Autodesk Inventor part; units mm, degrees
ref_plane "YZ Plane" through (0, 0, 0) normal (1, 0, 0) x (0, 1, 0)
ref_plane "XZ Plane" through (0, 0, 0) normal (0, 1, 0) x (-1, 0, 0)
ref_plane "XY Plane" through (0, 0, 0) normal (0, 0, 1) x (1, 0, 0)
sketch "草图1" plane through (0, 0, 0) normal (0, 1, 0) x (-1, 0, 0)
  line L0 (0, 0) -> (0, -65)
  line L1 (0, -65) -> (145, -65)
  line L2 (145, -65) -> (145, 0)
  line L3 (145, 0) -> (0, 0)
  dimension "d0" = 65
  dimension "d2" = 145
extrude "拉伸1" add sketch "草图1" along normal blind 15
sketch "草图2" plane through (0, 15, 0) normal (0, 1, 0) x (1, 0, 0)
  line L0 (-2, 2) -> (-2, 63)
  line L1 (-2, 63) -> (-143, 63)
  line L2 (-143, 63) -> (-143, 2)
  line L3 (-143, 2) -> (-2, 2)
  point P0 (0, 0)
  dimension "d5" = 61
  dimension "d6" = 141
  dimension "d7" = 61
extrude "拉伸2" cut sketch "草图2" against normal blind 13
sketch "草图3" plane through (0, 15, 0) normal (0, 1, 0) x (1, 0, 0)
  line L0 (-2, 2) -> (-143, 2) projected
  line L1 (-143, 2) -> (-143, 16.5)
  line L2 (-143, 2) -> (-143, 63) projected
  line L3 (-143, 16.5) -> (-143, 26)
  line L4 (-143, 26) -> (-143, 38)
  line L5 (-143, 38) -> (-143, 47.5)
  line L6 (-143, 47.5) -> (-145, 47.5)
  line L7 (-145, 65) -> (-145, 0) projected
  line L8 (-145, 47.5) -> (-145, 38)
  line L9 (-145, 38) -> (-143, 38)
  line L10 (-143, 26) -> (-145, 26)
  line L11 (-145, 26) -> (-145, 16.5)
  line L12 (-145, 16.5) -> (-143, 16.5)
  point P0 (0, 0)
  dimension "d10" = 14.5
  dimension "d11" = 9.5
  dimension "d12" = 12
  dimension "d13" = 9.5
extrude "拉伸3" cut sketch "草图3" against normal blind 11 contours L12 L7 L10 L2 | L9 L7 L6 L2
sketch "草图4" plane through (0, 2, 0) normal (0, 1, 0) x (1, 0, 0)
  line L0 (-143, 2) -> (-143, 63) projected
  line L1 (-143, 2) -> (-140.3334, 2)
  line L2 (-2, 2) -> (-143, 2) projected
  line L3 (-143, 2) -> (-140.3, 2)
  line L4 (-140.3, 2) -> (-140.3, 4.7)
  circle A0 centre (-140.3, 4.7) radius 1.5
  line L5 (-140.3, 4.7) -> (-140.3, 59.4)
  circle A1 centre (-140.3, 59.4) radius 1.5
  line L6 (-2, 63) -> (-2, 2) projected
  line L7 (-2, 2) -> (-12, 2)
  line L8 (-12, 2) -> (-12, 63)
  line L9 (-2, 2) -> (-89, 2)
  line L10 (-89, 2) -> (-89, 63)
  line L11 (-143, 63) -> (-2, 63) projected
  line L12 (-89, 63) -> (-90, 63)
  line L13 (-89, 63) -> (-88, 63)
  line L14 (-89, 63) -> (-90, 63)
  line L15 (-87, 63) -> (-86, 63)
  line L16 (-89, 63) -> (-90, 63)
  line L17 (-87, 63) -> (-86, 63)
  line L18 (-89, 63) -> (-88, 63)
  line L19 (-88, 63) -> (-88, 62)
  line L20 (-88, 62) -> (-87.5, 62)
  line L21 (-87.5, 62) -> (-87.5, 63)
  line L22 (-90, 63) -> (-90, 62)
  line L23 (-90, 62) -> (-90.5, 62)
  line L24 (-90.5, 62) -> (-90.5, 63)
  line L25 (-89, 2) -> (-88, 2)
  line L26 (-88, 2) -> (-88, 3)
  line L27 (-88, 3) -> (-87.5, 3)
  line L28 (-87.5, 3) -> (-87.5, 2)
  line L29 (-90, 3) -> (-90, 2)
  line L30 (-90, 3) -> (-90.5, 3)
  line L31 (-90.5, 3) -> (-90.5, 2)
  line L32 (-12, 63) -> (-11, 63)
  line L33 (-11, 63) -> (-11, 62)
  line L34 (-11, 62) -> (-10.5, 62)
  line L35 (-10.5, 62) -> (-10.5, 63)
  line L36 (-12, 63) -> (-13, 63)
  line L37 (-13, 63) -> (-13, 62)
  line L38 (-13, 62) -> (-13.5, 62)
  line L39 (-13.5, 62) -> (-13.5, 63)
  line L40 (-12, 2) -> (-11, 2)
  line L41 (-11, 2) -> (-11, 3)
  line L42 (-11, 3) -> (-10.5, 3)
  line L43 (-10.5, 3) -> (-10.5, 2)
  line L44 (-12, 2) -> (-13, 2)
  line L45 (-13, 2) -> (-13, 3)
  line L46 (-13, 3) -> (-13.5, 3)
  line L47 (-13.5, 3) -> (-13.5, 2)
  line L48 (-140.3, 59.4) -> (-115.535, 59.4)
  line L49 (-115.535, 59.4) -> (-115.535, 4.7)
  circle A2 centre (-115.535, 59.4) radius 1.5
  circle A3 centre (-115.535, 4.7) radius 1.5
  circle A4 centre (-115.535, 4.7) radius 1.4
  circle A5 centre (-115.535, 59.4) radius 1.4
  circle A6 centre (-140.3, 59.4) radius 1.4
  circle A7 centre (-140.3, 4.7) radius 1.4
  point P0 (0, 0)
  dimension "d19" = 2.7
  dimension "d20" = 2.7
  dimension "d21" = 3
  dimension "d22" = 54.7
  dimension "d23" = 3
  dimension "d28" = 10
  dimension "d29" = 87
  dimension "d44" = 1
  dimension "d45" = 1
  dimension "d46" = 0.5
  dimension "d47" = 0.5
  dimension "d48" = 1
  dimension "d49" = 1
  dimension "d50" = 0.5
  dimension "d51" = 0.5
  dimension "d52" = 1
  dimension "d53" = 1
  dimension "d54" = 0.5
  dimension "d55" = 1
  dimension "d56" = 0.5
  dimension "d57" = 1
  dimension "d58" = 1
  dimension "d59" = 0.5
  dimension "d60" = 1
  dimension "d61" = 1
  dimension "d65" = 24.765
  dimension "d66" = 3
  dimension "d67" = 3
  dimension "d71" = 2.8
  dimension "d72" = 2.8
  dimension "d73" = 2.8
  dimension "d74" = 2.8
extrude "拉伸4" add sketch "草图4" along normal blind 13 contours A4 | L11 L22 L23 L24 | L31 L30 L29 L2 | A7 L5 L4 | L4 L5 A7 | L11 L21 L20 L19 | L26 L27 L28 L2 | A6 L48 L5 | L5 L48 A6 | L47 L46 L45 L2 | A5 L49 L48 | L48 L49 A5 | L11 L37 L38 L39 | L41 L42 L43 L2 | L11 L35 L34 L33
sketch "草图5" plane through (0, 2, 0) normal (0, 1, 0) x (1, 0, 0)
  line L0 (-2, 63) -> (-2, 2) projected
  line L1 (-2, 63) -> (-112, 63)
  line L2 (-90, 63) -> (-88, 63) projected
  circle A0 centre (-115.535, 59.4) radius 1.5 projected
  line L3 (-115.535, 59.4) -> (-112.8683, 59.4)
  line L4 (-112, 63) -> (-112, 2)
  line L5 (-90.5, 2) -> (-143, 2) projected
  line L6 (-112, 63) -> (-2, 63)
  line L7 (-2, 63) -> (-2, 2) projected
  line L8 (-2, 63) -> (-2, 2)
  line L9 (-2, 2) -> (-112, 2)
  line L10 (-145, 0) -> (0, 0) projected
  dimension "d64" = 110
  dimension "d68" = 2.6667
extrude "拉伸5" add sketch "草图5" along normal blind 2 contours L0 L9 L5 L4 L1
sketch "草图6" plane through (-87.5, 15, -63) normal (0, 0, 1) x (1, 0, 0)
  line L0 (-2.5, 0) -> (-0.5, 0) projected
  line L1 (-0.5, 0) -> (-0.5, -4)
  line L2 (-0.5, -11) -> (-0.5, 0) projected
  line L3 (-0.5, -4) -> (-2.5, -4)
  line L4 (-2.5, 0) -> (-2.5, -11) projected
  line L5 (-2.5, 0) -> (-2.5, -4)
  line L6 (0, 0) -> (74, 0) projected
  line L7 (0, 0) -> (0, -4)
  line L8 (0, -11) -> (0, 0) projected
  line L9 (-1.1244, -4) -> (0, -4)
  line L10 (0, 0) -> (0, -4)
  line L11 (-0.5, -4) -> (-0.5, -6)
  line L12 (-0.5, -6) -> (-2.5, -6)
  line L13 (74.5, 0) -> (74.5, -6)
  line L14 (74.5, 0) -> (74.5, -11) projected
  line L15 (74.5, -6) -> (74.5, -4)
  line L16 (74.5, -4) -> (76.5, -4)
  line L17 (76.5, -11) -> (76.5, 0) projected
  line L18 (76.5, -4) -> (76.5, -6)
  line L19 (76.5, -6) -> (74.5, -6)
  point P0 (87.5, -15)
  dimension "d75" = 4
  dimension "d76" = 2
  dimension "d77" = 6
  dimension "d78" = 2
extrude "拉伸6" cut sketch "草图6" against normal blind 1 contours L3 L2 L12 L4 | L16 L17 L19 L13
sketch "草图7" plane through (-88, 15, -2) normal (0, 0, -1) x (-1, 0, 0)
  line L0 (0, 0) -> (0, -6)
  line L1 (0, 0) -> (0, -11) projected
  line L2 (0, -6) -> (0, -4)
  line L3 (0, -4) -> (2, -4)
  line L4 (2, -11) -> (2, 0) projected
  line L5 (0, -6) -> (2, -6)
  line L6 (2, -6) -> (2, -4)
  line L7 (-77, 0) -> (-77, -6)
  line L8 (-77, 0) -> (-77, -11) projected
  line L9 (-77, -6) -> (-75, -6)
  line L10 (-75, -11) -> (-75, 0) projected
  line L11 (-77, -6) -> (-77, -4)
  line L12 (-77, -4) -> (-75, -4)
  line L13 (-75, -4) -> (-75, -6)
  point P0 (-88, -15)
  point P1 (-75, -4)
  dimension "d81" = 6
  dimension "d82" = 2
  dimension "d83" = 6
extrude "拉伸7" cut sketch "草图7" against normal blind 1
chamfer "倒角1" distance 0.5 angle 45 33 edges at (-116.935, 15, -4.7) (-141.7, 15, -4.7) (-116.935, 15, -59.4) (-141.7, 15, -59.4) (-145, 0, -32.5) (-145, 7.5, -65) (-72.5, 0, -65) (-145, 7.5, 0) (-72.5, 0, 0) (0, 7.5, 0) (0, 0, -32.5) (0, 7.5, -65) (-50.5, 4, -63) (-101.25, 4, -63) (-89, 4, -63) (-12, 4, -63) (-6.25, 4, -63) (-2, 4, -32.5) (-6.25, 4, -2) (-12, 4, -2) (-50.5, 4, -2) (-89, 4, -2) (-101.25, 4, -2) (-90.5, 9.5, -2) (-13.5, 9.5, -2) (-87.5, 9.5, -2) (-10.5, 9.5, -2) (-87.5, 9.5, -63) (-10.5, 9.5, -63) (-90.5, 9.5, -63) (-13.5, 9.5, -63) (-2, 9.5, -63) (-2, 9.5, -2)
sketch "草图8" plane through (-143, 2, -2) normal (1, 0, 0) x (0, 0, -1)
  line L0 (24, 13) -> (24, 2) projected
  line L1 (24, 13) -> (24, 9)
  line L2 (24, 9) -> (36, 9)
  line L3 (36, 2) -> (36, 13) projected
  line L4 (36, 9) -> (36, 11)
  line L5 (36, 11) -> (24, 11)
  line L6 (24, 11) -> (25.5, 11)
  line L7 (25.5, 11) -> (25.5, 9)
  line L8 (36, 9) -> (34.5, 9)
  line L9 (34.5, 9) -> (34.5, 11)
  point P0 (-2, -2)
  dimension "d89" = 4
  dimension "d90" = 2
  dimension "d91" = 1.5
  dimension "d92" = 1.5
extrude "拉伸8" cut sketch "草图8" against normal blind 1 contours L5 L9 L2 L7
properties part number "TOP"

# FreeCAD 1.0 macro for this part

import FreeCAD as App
import Part
import Sketcher
Q = App.Units.Quantity


def edges_at(feature, points):
    """Names of the edges that pass closest to the given points."""
    edges = feature.Shape.Edges
    near = lambda p: min(range(len(edges)), key=lambda i: edges[i].distToShape(Part.Vertex(*p))[0])
    return sorted({f"Edge{near(p) + 1}" for p in points})


def add_polygon(sketch, points):
    """Adds a closed chain of lines whose ends are joined by coincident constraints."""
    first, n = sketch.GeometryCount, len(points)
    for a, b in zip(points, points[1:] + points[:1]):
        sketch.addGeometry(Part.LineSegment(App.Vector(*a, 0), App.Vector(*b, 0)), False)
    for i in range(n):
        sketch.addConstraint(Sketcher.Constraint("Coincident", first + i, 2, first + (i + 1) % n, 1))

doc = App.newDocument("Part")
body = doc.addObject("PartDesign::Body", "Body")

# Sketch on XZ plane
sketch1 = doc.addObject("Sketcher::SketchObject", "Sketch")
body.addObject(sketch1)
sketch1.AttachmentSupport = (doc.XZ_Plane, [""])
sketch1.MapMode = "FlatFace"
add_polygon(sketch1, [(-145, 0), (0, 0), (0, -65), (-145, -65)])  # lines 0-3
sketch1.addConstraint([
    Sketcher.Constraint("Horizontal", 0),
    Sketcher.Constraint("Vertical", 1),
    Sketcher.Constraint("Horizontal", 2),
    Sketcher.Constraint("Vertical", 3),
    Sketcher.Constraint("Coincident", 0, 2, -1, 1),
    Sketcher.Constraint("DistanceX", 0, 1, 0, 2, Q("145 mm")),
    Sketcher.Constraint("DistanceY", 1, 2, 1, 1, Q("65 mm")),
])
pad1 = doc.addObject("PartDesign::Pad", "Pad")
body.addObject(pad1)
pad1.Profile = sketch1
pad1.Length = 15
pad1.Reversed = True

# Sketch on XZ plane
sketch2 = doc.addObject("Sketcher::SketchObject", "Sketch001")
body.addObject(sketch2)
sketch2.AttachmentSupport = (doc.XZ_Plane, [""])
sketch2.MapMode = "FlatFace"
sketch2.AttachmentOffset = App.Placement(App.Vector(0, 0, -15), App.Rotation())
add_polygon(sketch2, [(-143, -2), (-2, -2), (-2, -63), (-143, -63)])  # lines 0-3
sketch2.addConstraint([
    Sketcher.Constraint("Horizontal", 0),
    Sketcher.Constraint("Vertical", 1),
    Sketcher.Constraint("Horizontal", 2),
    Sketcher.Constraint("Vertical", 3),
    Sketcher.Constraint("DistanceX", 0, 1, 0, 2, Q("141 mm")),
    Sketcher.Constraint("DistanceY", 1, 2, 1, 1, Q("61 mm")),
    Sketcher.Constraint("DistanceX", 0, 2, -1, 1, Q("2 mm")),
    Sketcher.Constraint("DistanceY", 0, 2, -1, 1, Q("2 mm")),
])
pocket1 = doc.addObject("PartDesign::Pocket", "Pocket")
body.addObject(pocket1)
pocket1.Profile = sketch2
pocket1.Length = 13
pocket1.Reversed = True

# Sketch on XZ plane
sketch3 = doc.addObject("Sketcher::SketchObject", "Sketch002")
body.addObject(sketch3)
sketch3.AttachmentSupport = (doc.XZ_Plane, [""])
sketch3.MapMode = "FlatFace"
sketch3.AttachmentOffset = App.Placement(App.Vector(0, 0, -15), App.Rotation())
add_polygon(sketch3, [(-145, -16.5), (-143, -16.5), (-143, -26), (-145, -26)])  # lines 0-3
add_polygon(sketch3, [(-145, -38), (-143, -38), (-143, -47.5), (-145, -47.5)])  # lines 4-7
sketch3.addConstraint([
    Sketcher.Constraint("Horizontal", 0),
    Sketcher.Constraint("Vertical", 1),
    Sketcher.Constraint("Horizontal", 2),
    Sketcher.Constraint("Vertical", 3),
    Sketcher.Constraint("Horizontal", 4),
    Sketcher.Constraint("Vertical", 5),
    Sketcher.Constraint("Horizontal", 6),
    Sketcher.Constraint("Vertical", 7),
    Sketcher.Constraint("Vertical", 1, 2, 4, 2),
    Sketcher.Constraint("Vertical", 3, 2, 6, 2),
    Sketcher.Constraint("Equal", 3, 5),
    Sketcher.Constraint("DistanceY", 1, 2, 1, 1, Q("9.5 mm")),
    Sketcher.Constraint("DistanceY", 4, 2, 1, 2, Q("12 mm")),
    Sketcher.Constraint("DistanceX", 0, 1, 0, 2, Q("2 mm")),
    Sketcher.Constraint("DistanceX", 0, 2, -1, 1, Q("143 mm")),
    Sketcher.Constraint("DistanceY", 1, 2, -1, 1, Q("26 mm")),
])
pocket2 = doc.addObject("PartDesign::Pocket", "Pocket001")
body.addObject(pocket2)
pocket2.Profile = sketch3
pocket2.Length = 11
pocket2.Reversed = True

# Sketch on XZ plane
sketch4 = doc.addObject("Sketcher::SketchObject", "Sketch003")
body.addObject(sketch4)
sketch4.AttachmentSupport = (doc.XZ_Plane, [""])
sketch4.MapMode = "FlatFace"
sketch4.AttachmentOffset = App.Placement(App.Vector(0, 0, -2), App.Rotation())
sketch4.addGeometry(Part.Circle(App.Vector(-115.5, -4.7, 0), App.Vector(0, 0, 1), 1.4), False)  # 0
add_polygon(sketch4, [(-90, -63), (-90.5, -63), (-90.5, -62), (-90, -62)])  # lines 1-4
add_polygon(sketch4, [(-90.5, -3), (-90.5, -2), (-90, -2), (-90, -3)])  # lines 5-8
sketch4.addGeometry(Part.Circle(App.Vector(-140.3, -4.7, 0), App.Vector(0, 0, 1), 1.4), False)  # 9
add_polygon(sketch4, [(-87.5, -63), (-88, -63), (-88, -62), (-87.5, -62)])  # lines 10-13
add_polygon(sketch4, [(-88, -3), (-88, -2), (-87.5, -2), (-87.5, -3)])  # lines 14-17
sketch4.addGeometry(Part.Circle(App.Vector(-140.3, -59.4, 0), App.Vector(0, 0, 1), 1.4), False)  # 18
add_polygon(sketch4, [(-13.5, -3), (-13.5, -2), (-13, -2), (-13, -3)])  # lines 19-22
sketch4.addGeometry(Part.Circle(App.Vector(-115.5, -59.4, 0), App.Vector(0, 0, 1), 1.4), False)  # 23
add_polygon(sketch4, [(-13, -63), (-13.5, -63), (-13.5, -62), (-13, -62)])  # lines 24-27
add_polygon(sketch4, [(-11, -3), (-11, -2), (-10.5, -2), (-10.5, -3)])  # lines 28-31
add_polygon(sketch4, [(-10.5, -63), (-11, -63), (-11, -62), (-10.5, -62)])  # lines 32-35
sketch4.addConstraint([
    Sketcher.Constraint("Horizontal", 1),
    Sketcher.Constraint("Vertical", 2),
    Sketcher.Constraint("Horizontal", 3),
    Sketcher.Constraint("Vertical", 4),
    Sketcher.Constraint("Vertical", 5),
    Sketcher.Constraint("Horizontal", 6),
    Sketcher.Constraint("Vertical", 7),
    Sketcher.Constraint("Horizontal", 8),
    Sketcher.Constraint("Horizontal", 10),
    Sketcher.Constraint("Vertical", 11),
    Sketcher.Constraint("Horizontal", 12),
    Sketcher.Constraint("Vertical", 13),
    Sketcher.Constraint("Vertical", 14),
    Sketcher.Constraint("Horizontal", 15),
    Sketcher.Constraint("Vertical", 16),
    Sketcher.Constraint("Horizontal", 17),
    Sketcher.Constraint("Vertical", 19),
    Sketcher.Constraint("Horizontal", 20),
    Sketcher.Constraint("Vertical", 21),
    Sketcher.Constraint("Horizontal", 22),
    Sketcher.Constraint("Horizontal", 24),
    Sketcher.Constraint("Vertical", 25),
    Sketcher.Constraint("Horizontal", 26),
    Sketcher.Constraint("Vertical", 27),
    Sketcher.Constraint("Vertical", 28),
    Sketcher.Constraint("Horizontal", 29),
    Sketcher.Constraint("Vertical", 30),
    Sketcher.Constraint("Horizontal", 31),
    Sketcher.Constraint("Horizontal", 32),
    Sketcher.Constraint("Vertical", 33),
    Sketcher.Constraint("Horizontal", 34),
    Sketcher.Constraint("Vertical", 35),
    Sketcher.Constraint("Equal", 0, 9),
    Sketcher.Constraint("Equal", 9, 18),
    Sketcher.Constraint("Equal", 18, 23),
    Sketcher.Constraint("Horizontal", 0, 3, 9, 3),
    Sketcher.Constraint("Horizontal", 18, 3, 23, 3),
    Sketcher.Constraint("Horizontal", 4, 2, 10, 2),
    Sketcher.Constraint("Horizontal", 3, 2, 11, 2),
    Sketcher.Constraint("Horizontal", 6, 2, 14, 2),
    Sketcher.Constraint("Horizontal", 8, 2, 16, 2),
    Sketcher.Constraint("Horizontal", 15, 2, 19, 2),
    Sketcher.Constraint("Horizontal", 17, 2, 21, 2),
    Sketcher.Constraint("Horizontal", 13, 2, 24, 2),
    Sketcher.Constraint("Horizontal", 12, 2, 25, 2),
    Sketcher.Constraint("Horizontal", 20, 2, 28, 2),
    Sketcher.Constraint("Horizontal", 22, 2, 30, 2),
    Sketcher.Constraint("Horizontal", 27, 2, 32, 2),
    Sketcher.Constraint("Horizontal", 26, 2, 33, 2),
    Sketcher.Constraint("Vertical", 9, 3, 18, 3),
    Sketcher.Constraint("Vertical", 0, 3, 23, 3),
    Sketcher.Constraint("Vertical", 2, 2, 5, 2),
    Sketcher.Constraint("Vertical", 4, 2, 6, 2),
    Sketcher.Constraint("Vertical", 11, 2, 14, 2),
    Sketcher.Constraint("Vertical", 13, 2, 15, 2),
    Sketcher.Constraint("Vertical", 22, 2, 24, 2),
    Sketcher.Constraint("Vertical", 21, 2, 26, 2),
    Sketcher.Constraint("Vertical", 31, 2, 32, 2),
    Sketcher.Constraint("Vertical", 30, 2, 34, 2),
    Sketcher.Constraint("Equal", 8, 10),
    Sketcher.Constraint("Equal", 17, 20),
    Sketcher.Constraint("Equal", 26, 29),
    Sketcher.Constraint("Equal", 4, 5),
    Sketcher.Constraint("Diameter", 0, Q("2.8 mm")),
    Sketcher.Constraint("DistanceY", 2, 1, 2, 2, Q("1 mm")),
    Sketcher.Constraint("DistanceX", 1, 2, 1, 1, Q("0.5 mm")),
    Sketcher.Constraint("DistanceY", 7, 2, -1, 1, Q("3 mm")),
    Sketcher.Constraint("DistanceX", 2, 2, 12, 2, Q("3 mm")),
    Sketcher.Constraint("DistanceX", 19, 2, 29, 2, Q("3 mm")),
    Sketcher.Constraint("DistanceY", 18, 3, 9, 3, Q("54.7 mm")),
    Sketcher.Constraint("DistanceY", 0, 3, 5, 2, Q("2.7 mm")),
    Sketcher.Constraint("DistanceY", 1, 2, -1, 1, Q("63 mm")),
    Sketcher.Constraint("DistanceX", 3, 2, -1, 1, Q("90 mm")),
    Sketcher.Constraint("DistanceX", 20, 2, -1, 1, Q("13 mm")),
    Sketcher.Constraint("DistanceX", 9, 3, 0, 3, Q("24.765 mm")),
    Sketcher.Constraint("DistanceX", 9, 3, -1, 1, Q("140.3 mm")),
])
pad2 = doc.addObject("PartDesign::Pad", "Pad001")
body.addObject(pad2)
pad2.Profile = sketch4
pad2.Length = 13
pad2.Reversed = True

# Sketch on XZ plane
sketch5 = doc.addObject("Sketcher::SketchObject", "Sketch004")
body.addObject(sketch5)
sketch5.AttachmentSupport = (doc.XZ_Plane, [""])
sketch5.MapMode = "FlatFace"
sketch5.AttachmentOffset = App.Placement(App.Vector(0, 0, -2), App.Rotation())
add_polygon(sketch5, [(-2, -2), (-2, -63), (-112, -63), (-112, -2)])  # lines 0-3
sketch5.addConstraint([
    Sketcher.Constraint("Vertical", 0),
    Sketcher.Constraint("Horizontal", 1),
    Sketcher.Constraint("Vertical", 2),
    Sketcher.Constraint("Horizontal", 3),
    Sketcher.Constraint("DistanceX", 1, 2, 1, 1, Q("110 mm")),
    Sketcher.Constraint("DistanceY", 0, 2, 0, 1, Q("61 mm")),
    Sketcher.Constraint("DistanceX", 0, 2, -1, 1, Q("2 mm")),
    Sketcher.Constraint("DistanceY", 0, 2, -1, 1, Q("63 mm")),
])
pad3 = doc.addObject("PartDesign::Pad", "Pad002")
body.addObject(pad3)
pad3.Profile = sketch5
pad3.Length = 2
pad3.Reversed = True

# Sketch on XY plane
sketch6 = doc.addObject("Sketcher::SketchObject", "Sketch005")
body.addObject(sketch6)
sketch6.AttachmentSupport = (doc.XY_Plane, [""])
sketch6.MapMode = "FlatFace"
sketch6.AttachmentOffset = App.Placement(App.Vector(0, 0, -63), App.Rotation())
add_polygon(sketch6, [(-88, 11), (-90, 11), (-90, 9), (-88, 9)])  # lines 0-3
add_polygon(sketch6, [(-11, 11), (-13, 11), (-13, 9), (-11, 9)])  # lines 4-7
sketch6.addConstraint([
    Sketcher.Constraint("Horizontal", 0),
    Sketcher.Constraint("Vertical", 1),
    Sketcher.Constraint("Horizontal", 2),
    Sketcher.Constraint("Vertical", 3),
    Sketcher.Constraint("Horizontal", 4),
    Sketcher.Constraint("Vertical", 5),
    Sketcher.Constraint("Horizontal", 6),
    Sketcher.Constraint("Vertical", 7),
    Sketcher.Constraint("Horizontal", 3, 2, 4, 2),
    Sketcher.Constraint("Horizontal", 2, 2, 5, 2),
    Sketcher.Constraint("Equal", 2, 4),
    Sketcher.Constraint("Equal", 6, 1),
    Sketcher.Constraint("DistanceX", 0, 2, 0, 1, Q("2 mm")),
    Sketcher.Constraint("DistanceX", 0, 2, -1, 1, Q("90 mm")),
    Sketcher.Constraint("DistanceY", -1, 1, 0, 2, Q("11 mm")),
    Sketcher.Constraint("DistanceX", 4, 2, -1, 1, Q("13 mm")),
])
pocket3 = doc.addObject("PartDesign::Pocket", "Pocket002")
body.addObject(pocket3)
pocket3.Profile = sketch6
pocket3.Length = 1

# Sketch on XY plane
sketch7 = doc.addObject("Sketcher::SketchObject", "Sketch006")
body.addObject(sketch7)
sketch7.AttachmentSupport = (doc.XY_Plane, [""])
sketch7.MapMode = "FlatFace"
sketch7.AttachmentOffset = App.Placement(App.Vector(0, 0, -2), App.Rotation())
add_polygon(sketch7, [(-90, 11), (-88, 11), (-88, 9), (-90, 9)])  # lines 0-3
add_polygon(sketch7, [(-13, 11), (-11, 11), (-11, 9), (-13, 9)])  # lines 4-7
sketch7.addConstraint([
    Sketcher.Constraint("Horizontal", 0),
    Sketcher.Constraint("Vertical", 1),
    Sketcher.Constraint("Horizontal", 2),
    Sketcher.Constraint("Vertical", 3),
    Sketcher.Constraint("Horizontal", 4),
    Sketcher.Constraint("Vertical", 5),
    Sketcher.Constraint("Horizontal", 6),
    Sketcher.Constraint("Vertical", 7),
    Sketcher.Constraint("Horizontal", 3, 2, 4, 2),
    Sketcher.Constraint("Horizontal", 2, 2, 5, 2),
    Sketcher.Constraint("Equal", 2, 4),
    Sketcher.Constraint("Equal", 6, 1),
    Sketcher.Constraint("DistanceX", 0, 1, 0, 2, Q("2 mm")),
    Sketcher.Constraint("DistanceX", 0, 2, -1, 1, Q("88 mm")),
    Sketcher.Constraint("DistanceY", -1, 1, 0, 2, Q("11 mm")),
    Sketcher.Constraint("DistanceX", 4, 2, -1, 1, Q("11 mm")),
])
pocket4 = doc.addObject("PartDesign::Pocket", "Pocket003")
body.addObject(pocket4)
pocket4.Profile = sketch7
pocket4.Length = 1
pocket4.Reversed = True
doc.recompute()

chamfer = doc.addObject("PartDesign::Chamfer", "Chamfer")
body.addObject(chamfer)
chamfer.Base = (pocket4, edges_at(pocket4, [
    (-116.935, 15, -4.7),
    (-141.7, 15, -4.7),
    (-116.935, 15, -59.4),
    (-141.7, 15, -59.4),
    (-145, 0, -32.5),
    (-145, 7.5, -65),
    (-72.5, 0, -65),
    (-145, 7.5, 0),
    (-72.5, 0, 0),
    (0, 7.5, 0),
    (0, 0, -32.5),
    (0, 7.5, -65),
    (-50.5, 4, -63),
    (-101.25, 4, -63),
    (-89, 4, -63),
    (-12, 4, -63),
    (-6.25, 4, -63),
    (-2, 4, -32.5),
    (-6.25, 4, -2),
    (-12, 4, -2),
    (-50.5, 4, -2),
    (-89, 4, -2),
    (-101.25, 4, -2),
    (-90.5, 9.5, -2),
    (-13.5, 9.5, -2),
    (-87.5, 9.5, -2),
    (-10.5, 9.5, -2),
    (-87.5, 9.5, -63),
    (-10.5, 9.5, -63),
    (-90.5, 9.5, -63),
    (-13.5, 9.5, -63),
    (-2, 9.5, -63),
    (-2, 9.5, -2),
]))
chamfer.Size = 0.5

# Sketch on YZ plane
sketch8 = doc.addObject("Sketcher::SketchObject", "Sketch007")
body.addObject(sketch8)
sketch8.AttachmentSupport = (doc.YZ_Plane, [""])
sketch8.MapMode = "FlatFace"
sketch8.AttachmentOffset = App.Placement(App.Vector(0, 0, -143), App.Rotation())
add_polygon(sketch8, [(13, -36.5), (13, -27.5), (11, -27.5), (11, -36.5)])  # lines 0-3
sketch8.addConstraint([
    Sketcher.Constraint("Vertical", 0),
    Sketcher.Constraint("Horizontal", 1),
    Sketcher.Constraint("Vertical", 2),
    Sketcher.Constraint("Horizontal", 3),
    Sketcher.Constraint("DistanceX", 1, 2, 1, 1, Q("2 mm")),
    Sketcher.Constraint("DistanceY", 0, 1, 0, 2, Q("9 mm")),
    Sketcher.Constraint("DistanceX", -1, 1, 0, 2, Q("13 mm")),
    Sketcher.Constraint("DistanceY", 0, 2, -1, 1, Q("27.5 mm")),
])
pocket5 = doc.addObject("PartDesign::Pocket", "Pocket004")
body.addObject(pocket5)
pocket5.Profile = sketch8
pocket5.Length = 1

doc.recompute()
